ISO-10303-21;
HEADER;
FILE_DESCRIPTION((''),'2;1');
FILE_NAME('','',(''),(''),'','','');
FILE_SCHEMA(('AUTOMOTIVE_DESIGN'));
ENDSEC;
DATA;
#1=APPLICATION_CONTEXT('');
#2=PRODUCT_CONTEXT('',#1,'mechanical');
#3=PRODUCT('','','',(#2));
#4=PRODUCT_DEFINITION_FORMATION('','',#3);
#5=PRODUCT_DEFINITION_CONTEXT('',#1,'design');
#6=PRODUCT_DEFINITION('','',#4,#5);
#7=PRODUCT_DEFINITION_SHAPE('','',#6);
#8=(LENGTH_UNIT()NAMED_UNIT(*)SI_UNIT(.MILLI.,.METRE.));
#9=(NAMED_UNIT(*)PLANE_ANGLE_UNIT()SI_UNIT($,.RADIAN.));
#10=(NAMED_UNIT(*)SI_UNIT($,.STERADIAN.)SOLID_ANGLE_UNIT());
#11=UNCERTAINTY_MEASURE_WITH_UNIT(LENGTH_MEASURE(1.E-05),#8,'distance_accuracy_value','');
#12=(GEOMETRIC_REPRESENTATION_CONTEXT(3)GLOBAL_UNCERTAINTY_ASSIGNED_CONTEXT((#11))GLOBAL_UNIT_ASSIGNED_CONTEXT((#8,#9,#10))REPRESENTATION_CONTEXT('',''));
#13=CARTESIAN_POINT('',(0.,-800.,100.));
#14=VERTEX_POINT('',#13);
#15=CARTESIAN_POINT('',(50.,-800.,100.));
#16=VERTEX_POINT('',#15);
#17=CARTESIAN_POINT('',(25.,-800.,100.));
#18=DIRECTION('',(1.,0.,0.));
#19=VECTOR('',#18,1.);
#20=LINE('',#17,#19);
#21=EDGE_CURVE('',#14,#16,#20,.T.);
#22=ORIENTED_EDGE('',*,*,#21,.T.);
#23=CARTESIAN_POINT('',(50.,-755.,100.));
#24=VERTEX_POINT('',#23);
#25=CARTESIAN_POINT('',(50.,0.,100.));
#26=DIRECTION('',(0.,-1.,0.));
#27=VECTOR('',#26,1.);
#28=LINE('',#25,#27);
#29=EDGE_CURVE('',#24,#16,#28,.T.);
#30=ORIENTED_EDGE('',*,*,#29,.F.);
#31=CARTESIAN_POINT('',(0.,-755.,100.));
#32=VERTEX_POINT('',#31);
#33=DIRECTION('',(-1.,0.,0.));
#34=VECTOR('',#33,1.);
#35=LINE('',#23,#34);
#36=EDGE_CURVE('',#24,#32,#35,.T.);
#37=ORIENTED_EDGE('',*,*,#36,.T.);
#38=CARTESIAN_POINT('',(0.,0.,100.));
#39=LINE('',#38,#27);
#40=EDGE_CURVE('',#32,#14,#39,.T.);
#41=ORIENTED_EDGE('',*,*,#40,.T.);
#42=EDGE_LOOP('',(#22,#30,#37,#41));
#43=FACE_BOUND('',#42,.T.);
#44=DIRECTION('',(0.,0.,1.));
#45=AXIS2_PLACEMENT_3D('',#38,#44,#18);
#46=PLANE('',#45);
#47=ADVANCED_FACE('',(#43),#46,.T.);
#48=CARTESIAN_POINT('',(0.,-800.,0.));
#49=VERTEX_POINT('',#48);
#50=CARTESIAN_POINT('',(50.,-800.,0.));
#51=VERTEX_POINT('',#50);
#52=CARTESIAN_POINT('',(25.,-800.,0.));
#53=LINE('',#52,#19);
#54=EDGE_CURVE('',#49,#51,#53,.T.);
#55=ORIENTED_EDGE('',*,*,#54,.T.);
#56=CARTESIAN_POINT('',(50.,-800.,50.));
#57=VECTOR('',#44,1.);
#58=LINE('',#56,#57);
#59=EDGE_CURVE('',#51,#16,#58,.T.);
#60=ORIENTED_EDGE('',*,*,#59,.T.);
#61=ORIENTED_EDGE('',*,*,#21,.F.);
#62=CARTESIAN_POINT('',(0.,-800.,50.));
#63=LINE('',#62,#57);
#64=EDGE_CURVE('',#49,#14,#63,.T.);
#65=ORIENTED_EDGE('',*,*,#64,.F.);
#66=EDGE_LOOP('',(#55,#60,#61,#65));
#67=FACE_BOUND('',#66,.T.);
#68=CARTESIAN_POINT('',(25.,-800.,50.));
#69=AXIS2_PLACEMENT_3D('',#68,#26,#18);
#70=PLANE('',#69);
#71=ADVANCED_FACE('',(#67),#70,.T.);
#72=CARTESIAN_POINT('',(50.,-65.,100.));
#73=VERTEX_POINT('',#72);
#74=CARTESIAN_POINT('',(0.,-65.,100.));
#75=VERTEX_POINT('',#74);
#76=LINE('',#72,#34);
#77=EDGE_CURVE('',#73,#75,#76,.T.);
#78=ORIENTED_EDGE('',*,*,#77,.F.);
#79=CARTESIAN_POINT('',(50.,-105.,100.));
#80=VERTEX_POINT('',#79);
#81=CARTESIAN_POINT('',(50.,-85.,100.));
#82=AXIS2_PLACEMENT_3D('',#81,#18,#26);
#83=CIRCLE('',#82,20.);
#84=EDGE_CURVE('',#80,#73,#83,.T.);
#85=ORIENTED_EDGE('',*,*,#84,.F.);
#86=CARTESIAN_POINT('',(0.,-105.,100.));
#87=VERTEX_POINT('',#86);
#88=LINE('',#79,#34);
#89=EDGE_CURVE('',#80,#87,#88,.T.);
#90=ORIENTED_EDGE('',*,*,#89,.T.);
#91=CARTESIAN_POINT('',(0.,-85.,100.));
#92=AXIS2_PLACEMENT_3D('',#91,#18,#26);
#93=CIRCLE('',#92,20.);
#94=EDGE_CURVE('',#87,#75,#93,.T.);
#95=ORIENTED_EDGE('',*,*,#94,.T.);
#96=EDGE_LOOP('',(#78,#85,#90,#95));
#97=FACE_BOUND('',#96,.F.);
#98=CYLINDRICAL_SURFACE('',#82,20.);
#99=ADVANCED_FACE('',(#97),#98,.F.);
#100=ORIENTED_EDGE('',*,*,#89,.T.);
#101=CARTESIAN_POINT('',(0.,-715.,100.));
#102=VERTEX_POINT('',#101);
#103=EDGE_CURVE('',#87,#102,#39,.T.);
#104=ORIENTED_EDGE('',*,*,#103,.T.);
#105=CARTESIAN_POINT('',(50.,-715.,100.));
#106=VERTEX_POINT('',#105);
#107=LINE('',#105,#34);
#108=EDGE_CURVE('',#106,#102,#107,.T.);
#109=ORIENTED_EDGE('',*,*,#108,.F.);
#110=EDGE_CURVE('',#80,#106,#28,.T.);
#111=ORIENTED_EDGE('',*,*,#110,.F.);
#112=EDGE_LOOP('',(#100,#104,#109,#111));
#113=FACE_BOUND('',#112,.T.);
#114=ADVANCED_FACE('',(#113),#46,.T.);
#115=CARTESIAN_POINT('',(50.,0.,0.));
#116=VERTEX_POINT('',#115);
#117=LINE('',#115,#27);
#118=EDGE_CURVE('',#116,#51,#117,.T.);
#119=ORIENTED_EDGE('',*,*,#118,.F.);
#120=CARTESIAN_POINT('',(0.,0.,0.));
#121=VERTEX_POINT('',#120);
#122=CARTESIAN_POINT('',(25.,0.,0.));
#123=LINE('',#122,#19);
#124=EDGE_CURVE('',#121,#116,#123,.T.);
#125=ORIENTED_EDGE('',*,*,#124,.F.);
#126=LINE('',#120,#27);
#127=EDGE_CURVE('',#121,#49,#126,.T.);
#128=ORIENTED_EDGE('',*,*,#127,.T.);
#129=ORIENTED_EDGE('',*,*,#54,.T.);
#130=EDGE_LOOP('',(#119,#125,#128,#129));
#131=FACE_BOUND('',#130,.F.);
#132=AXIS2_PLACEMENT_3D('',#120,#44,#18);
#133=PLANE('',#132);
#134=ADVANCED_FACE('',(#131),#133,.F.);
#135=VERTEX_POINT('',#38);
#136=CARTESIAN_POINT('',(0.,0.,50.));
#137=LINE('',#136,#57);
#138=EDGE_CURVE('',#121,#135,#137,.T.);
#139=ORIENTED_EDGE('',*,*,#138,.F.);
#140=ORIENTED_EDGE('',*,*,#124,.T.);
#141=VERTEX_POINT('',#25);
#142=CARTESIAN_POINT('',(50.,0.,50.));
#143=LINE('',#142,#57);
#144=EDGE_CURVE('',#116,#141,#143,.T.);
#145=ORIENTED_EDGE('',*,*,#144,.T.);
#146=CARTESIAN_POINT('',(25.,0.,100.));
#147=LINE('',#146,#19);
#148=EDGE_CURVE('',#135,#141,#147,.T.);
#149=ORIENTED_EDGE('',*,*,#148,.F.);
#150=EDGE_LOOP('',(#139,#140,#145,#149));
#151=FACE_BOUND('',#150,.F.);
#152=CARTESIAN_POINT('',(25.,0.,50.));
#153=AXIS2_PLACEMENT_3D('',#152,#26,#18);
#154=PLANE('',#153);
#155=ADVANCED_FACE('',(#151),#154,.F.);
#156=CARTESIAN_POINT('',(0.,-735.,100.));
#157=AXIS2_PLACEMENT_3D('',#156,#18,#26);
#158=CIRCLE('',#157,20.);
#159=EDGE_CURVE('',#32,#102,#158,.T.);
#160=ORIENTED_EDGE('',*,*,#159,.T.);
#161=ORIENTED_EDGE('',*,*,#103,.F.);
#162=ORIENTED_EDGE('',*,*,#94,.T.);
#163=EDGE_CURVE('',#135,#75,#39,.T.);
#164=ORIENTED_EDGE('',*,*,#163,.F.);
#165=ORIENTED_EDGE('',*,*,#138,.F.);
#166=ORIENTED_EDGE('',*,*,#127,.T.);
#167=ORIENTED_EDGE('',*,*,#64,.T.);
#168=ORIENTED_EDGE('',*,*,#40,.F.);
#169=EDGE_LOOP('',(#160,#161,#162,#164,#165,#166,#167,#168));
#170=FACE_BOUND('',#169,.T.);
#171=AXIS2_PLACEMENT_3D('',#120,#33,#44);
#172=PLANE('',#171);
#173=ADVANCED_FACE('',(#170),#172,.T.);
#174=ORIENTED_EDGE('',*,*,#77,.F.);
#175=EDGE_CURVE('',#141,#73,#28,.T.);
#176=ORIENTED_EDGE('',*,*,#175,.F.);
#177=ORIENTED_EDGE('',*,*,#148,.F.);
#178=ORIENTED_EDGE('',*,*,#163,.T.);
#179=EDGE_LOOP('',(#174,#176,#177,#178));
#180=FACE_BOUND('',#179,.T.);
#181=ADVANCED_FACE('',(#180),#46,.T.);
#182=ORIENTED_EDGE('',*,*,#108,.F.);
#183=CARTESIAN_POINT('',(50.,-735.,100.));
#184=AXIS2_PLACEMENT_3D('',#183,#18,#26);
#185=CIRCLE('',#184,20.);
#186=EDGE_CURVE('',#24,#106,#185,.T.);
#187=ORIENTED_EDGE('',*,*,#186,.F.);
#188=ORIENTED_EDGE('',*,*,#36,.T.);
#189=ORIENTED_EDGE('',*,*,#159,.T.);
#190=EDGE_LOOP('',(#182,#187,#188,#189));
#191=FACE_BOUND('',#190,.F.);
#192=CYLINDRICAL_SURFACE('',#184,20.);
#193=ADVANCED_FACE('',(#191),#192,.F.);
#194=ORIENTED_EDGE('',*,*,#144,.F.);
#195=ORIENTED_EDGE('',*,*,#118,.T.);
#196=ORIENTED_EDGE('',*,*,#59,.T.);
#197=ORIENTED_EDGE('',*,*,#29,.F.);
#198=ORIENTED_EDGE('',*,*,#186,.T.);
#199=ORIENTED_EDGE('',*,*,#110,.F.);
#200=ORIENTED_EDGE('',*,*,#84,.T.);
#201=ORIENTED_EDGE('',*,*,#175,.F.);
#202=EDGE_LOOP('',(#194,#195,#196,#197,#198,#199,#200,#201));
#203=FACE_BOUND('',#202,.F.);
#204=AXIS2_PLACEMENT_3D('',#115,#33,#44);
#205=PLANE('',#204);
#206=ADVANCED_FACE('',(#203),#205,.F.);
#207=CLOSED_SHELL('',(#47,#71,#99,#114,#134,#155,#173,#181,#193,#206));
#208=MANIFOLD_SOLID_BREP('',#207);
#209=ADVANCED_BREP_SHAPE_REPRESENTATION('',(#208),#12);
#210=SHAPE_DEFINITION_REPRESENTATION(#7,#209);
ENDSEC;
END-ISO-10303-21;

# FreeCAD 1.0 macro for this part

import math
import FreeCAD as App
import Part
import Sketcher


def add_polygon(sketch, points):
    """Adds a closed chain of lines whose ends are joined by coincident constraints."""
    first, n = sketch.GeometryCount, len(points)
    for a, b in zip(points, points[1:] + points[:1]):
        sketch.addGeometry(Part.LineSegment(App.Vector(*a, 0), App.Vector(*b, 0)), False)
    for i in range(n):
        sketch.addConstraint(Sketcher.Constraint("Coincident", first + i, 2, first + (i + 1) % n, 1))

doc = App.newDocument("Part")
params = doc.addObject("Spreadsheet::Sheet", "Params")
for row, (alias, value) in enumerate([
    ("sketch1_width", "50 mm"),
    ("sketch1_height", "100 mm"),
    ("pad1_length", "800 mm"),
    ("sketch2_radius", "20 mm"),
], start=1):
    params.set(f"A{row}", alias)
    params.set(f"B{row}", "=" + value)
    params.setAlias(f"B{row}", alias)

body = doc.addObject("PartDesign::Body", "Body")

# Sketch on XZ plane
sketch1 = body.newObject("Sketcher::SketchObject", "Sketch")
sketch1.AttachmentSupport = (doc.getObject("XZ_Plane"), [""])
sketch1.MapMode = "FlatFace"
add_polygon(sketch1, [(0, 100), (0, 0), (50, 0), (50, 100)])  # lines 0-3
sketch1.addConstraint(Sketcher.Constraint("Vertical", 0))
sketch1.addConstraint(Sketcher.Constraint("Horizontal", 1))
sketch1.addConstraint(Sketcher.Constraint("Vertical", 2))
sketch1.addConstraint(Sketcher.Constraint("Horizontal", 3))
sketch1.addConstraint(Sketcher.Constraint("Coincident", 0, 2, -1, 1))
sketch1.addConstraint(Sketcher.Constraint("DistanceX", 1, 1, 1, 2, 50.0))
sketch1.addConstraint(Sketcher.Constraint("DistanceY", 0, 2, 0, 1, 100.0))
sketch1.setExpression("Constraints[9]", "Params.sketch1_width")
sketch1.setExpression("Constraints[10]", "Params.sketch1_height")
pad1 = body.newObject("PartDesign::Pad", "Pad")
pad1.Profile = sketch1
pad1.setExpression("Length", "Params.pad1_length")

# Sketch on YZ plane
sketch2 = body.newObject("Sketcher::SketchObject", "Sketch001")
sketch2.AttachmentSupport = (doc.getObject("YZ_Plane"), [""])
sketch2.MapMode = "FlatFace"
sketch2.AttachmentOffset = App.Placement(App.Vector(0, 0, 50), App.Rotation())
sketch2.addGeometry(Part.LineSegment(App.Vector(-715, 100, 0), App.Vector(-755, 100, 0)), False)
sketch2.addGeometry(Part.ArcOfCircle(Part.Circle(App.Vector(-735, 100, 0), App.Vector(0, 0, 1), 20), math.radians(180), math.radians(360)), False)
sketch2.addGeometry(Part.LineSegment(App.Vector(-65, 100, 0), App.Vector(-105, 100, 0)), False)
sketch2.addGeometry(Part.ArcOfCircle(Part.Circle(App.Vector(-85, 100, 0), App.Vector(0, 0, 1), 20), math.radians(180), math.radians(360)), False)
sketch2.addConstraint(Sketcher.Constraint("Coincident", 0, 1, 1, 2))
sketch2.addConstraint(Sketcher.Constraint("Coincident", 1, 1, 0, 2))
sketch2.addConstraint(Sketcher.Constraint("Coincident", 2, 1, 3, 2))
sketch2.addConstraint(Sketcher.Constraint("Coincident", 3, 1, 2, 2))
sketch2.addConstraint(Sketcher.Constraint("Horizontal", 0))
sketch2.addConstraint(Sketcher.Constraint("Horizontal", 2))
sketch2.addConstraint(Sketcher.Constraint("Equal", 1, 3))
sketch2.addConstraint(Sketcher.Constraint("Horizontal", 1, 3, 3, 3))
sketch2.addConstraint(Sketcher.Constraint("Horizontal", 3, 3, 0, 1))
sketch2.addConstraint(Sketcher.Constraint("Horizontal", 1, 1, 2, 1))
sketch2.addConstraint(Sketcher.Constraint("Radius", 1, 20.0))
sketch2.addConstraint(Sketcher.Constraint("DistanceX", 1, 3, -1, 1, 735.0))
sketch2.addConstraint(Sketcher.Constraint("DistanceY", -1, 1, 1, 3, 100.0))
sketch2.addConstraint(Sketcher.Constraint("DistanceX", 3, 3, -1, 1, 85.0))
sketch2.setExpression("Constraints[10]", "Params.sketch2_radius")
pocket1 = body.newObject("PartDesign::Pocket", "Pocket")
pocket1.Profile = sketch2
pocket1.Type = "ThroughAll"

doc.recompute()
